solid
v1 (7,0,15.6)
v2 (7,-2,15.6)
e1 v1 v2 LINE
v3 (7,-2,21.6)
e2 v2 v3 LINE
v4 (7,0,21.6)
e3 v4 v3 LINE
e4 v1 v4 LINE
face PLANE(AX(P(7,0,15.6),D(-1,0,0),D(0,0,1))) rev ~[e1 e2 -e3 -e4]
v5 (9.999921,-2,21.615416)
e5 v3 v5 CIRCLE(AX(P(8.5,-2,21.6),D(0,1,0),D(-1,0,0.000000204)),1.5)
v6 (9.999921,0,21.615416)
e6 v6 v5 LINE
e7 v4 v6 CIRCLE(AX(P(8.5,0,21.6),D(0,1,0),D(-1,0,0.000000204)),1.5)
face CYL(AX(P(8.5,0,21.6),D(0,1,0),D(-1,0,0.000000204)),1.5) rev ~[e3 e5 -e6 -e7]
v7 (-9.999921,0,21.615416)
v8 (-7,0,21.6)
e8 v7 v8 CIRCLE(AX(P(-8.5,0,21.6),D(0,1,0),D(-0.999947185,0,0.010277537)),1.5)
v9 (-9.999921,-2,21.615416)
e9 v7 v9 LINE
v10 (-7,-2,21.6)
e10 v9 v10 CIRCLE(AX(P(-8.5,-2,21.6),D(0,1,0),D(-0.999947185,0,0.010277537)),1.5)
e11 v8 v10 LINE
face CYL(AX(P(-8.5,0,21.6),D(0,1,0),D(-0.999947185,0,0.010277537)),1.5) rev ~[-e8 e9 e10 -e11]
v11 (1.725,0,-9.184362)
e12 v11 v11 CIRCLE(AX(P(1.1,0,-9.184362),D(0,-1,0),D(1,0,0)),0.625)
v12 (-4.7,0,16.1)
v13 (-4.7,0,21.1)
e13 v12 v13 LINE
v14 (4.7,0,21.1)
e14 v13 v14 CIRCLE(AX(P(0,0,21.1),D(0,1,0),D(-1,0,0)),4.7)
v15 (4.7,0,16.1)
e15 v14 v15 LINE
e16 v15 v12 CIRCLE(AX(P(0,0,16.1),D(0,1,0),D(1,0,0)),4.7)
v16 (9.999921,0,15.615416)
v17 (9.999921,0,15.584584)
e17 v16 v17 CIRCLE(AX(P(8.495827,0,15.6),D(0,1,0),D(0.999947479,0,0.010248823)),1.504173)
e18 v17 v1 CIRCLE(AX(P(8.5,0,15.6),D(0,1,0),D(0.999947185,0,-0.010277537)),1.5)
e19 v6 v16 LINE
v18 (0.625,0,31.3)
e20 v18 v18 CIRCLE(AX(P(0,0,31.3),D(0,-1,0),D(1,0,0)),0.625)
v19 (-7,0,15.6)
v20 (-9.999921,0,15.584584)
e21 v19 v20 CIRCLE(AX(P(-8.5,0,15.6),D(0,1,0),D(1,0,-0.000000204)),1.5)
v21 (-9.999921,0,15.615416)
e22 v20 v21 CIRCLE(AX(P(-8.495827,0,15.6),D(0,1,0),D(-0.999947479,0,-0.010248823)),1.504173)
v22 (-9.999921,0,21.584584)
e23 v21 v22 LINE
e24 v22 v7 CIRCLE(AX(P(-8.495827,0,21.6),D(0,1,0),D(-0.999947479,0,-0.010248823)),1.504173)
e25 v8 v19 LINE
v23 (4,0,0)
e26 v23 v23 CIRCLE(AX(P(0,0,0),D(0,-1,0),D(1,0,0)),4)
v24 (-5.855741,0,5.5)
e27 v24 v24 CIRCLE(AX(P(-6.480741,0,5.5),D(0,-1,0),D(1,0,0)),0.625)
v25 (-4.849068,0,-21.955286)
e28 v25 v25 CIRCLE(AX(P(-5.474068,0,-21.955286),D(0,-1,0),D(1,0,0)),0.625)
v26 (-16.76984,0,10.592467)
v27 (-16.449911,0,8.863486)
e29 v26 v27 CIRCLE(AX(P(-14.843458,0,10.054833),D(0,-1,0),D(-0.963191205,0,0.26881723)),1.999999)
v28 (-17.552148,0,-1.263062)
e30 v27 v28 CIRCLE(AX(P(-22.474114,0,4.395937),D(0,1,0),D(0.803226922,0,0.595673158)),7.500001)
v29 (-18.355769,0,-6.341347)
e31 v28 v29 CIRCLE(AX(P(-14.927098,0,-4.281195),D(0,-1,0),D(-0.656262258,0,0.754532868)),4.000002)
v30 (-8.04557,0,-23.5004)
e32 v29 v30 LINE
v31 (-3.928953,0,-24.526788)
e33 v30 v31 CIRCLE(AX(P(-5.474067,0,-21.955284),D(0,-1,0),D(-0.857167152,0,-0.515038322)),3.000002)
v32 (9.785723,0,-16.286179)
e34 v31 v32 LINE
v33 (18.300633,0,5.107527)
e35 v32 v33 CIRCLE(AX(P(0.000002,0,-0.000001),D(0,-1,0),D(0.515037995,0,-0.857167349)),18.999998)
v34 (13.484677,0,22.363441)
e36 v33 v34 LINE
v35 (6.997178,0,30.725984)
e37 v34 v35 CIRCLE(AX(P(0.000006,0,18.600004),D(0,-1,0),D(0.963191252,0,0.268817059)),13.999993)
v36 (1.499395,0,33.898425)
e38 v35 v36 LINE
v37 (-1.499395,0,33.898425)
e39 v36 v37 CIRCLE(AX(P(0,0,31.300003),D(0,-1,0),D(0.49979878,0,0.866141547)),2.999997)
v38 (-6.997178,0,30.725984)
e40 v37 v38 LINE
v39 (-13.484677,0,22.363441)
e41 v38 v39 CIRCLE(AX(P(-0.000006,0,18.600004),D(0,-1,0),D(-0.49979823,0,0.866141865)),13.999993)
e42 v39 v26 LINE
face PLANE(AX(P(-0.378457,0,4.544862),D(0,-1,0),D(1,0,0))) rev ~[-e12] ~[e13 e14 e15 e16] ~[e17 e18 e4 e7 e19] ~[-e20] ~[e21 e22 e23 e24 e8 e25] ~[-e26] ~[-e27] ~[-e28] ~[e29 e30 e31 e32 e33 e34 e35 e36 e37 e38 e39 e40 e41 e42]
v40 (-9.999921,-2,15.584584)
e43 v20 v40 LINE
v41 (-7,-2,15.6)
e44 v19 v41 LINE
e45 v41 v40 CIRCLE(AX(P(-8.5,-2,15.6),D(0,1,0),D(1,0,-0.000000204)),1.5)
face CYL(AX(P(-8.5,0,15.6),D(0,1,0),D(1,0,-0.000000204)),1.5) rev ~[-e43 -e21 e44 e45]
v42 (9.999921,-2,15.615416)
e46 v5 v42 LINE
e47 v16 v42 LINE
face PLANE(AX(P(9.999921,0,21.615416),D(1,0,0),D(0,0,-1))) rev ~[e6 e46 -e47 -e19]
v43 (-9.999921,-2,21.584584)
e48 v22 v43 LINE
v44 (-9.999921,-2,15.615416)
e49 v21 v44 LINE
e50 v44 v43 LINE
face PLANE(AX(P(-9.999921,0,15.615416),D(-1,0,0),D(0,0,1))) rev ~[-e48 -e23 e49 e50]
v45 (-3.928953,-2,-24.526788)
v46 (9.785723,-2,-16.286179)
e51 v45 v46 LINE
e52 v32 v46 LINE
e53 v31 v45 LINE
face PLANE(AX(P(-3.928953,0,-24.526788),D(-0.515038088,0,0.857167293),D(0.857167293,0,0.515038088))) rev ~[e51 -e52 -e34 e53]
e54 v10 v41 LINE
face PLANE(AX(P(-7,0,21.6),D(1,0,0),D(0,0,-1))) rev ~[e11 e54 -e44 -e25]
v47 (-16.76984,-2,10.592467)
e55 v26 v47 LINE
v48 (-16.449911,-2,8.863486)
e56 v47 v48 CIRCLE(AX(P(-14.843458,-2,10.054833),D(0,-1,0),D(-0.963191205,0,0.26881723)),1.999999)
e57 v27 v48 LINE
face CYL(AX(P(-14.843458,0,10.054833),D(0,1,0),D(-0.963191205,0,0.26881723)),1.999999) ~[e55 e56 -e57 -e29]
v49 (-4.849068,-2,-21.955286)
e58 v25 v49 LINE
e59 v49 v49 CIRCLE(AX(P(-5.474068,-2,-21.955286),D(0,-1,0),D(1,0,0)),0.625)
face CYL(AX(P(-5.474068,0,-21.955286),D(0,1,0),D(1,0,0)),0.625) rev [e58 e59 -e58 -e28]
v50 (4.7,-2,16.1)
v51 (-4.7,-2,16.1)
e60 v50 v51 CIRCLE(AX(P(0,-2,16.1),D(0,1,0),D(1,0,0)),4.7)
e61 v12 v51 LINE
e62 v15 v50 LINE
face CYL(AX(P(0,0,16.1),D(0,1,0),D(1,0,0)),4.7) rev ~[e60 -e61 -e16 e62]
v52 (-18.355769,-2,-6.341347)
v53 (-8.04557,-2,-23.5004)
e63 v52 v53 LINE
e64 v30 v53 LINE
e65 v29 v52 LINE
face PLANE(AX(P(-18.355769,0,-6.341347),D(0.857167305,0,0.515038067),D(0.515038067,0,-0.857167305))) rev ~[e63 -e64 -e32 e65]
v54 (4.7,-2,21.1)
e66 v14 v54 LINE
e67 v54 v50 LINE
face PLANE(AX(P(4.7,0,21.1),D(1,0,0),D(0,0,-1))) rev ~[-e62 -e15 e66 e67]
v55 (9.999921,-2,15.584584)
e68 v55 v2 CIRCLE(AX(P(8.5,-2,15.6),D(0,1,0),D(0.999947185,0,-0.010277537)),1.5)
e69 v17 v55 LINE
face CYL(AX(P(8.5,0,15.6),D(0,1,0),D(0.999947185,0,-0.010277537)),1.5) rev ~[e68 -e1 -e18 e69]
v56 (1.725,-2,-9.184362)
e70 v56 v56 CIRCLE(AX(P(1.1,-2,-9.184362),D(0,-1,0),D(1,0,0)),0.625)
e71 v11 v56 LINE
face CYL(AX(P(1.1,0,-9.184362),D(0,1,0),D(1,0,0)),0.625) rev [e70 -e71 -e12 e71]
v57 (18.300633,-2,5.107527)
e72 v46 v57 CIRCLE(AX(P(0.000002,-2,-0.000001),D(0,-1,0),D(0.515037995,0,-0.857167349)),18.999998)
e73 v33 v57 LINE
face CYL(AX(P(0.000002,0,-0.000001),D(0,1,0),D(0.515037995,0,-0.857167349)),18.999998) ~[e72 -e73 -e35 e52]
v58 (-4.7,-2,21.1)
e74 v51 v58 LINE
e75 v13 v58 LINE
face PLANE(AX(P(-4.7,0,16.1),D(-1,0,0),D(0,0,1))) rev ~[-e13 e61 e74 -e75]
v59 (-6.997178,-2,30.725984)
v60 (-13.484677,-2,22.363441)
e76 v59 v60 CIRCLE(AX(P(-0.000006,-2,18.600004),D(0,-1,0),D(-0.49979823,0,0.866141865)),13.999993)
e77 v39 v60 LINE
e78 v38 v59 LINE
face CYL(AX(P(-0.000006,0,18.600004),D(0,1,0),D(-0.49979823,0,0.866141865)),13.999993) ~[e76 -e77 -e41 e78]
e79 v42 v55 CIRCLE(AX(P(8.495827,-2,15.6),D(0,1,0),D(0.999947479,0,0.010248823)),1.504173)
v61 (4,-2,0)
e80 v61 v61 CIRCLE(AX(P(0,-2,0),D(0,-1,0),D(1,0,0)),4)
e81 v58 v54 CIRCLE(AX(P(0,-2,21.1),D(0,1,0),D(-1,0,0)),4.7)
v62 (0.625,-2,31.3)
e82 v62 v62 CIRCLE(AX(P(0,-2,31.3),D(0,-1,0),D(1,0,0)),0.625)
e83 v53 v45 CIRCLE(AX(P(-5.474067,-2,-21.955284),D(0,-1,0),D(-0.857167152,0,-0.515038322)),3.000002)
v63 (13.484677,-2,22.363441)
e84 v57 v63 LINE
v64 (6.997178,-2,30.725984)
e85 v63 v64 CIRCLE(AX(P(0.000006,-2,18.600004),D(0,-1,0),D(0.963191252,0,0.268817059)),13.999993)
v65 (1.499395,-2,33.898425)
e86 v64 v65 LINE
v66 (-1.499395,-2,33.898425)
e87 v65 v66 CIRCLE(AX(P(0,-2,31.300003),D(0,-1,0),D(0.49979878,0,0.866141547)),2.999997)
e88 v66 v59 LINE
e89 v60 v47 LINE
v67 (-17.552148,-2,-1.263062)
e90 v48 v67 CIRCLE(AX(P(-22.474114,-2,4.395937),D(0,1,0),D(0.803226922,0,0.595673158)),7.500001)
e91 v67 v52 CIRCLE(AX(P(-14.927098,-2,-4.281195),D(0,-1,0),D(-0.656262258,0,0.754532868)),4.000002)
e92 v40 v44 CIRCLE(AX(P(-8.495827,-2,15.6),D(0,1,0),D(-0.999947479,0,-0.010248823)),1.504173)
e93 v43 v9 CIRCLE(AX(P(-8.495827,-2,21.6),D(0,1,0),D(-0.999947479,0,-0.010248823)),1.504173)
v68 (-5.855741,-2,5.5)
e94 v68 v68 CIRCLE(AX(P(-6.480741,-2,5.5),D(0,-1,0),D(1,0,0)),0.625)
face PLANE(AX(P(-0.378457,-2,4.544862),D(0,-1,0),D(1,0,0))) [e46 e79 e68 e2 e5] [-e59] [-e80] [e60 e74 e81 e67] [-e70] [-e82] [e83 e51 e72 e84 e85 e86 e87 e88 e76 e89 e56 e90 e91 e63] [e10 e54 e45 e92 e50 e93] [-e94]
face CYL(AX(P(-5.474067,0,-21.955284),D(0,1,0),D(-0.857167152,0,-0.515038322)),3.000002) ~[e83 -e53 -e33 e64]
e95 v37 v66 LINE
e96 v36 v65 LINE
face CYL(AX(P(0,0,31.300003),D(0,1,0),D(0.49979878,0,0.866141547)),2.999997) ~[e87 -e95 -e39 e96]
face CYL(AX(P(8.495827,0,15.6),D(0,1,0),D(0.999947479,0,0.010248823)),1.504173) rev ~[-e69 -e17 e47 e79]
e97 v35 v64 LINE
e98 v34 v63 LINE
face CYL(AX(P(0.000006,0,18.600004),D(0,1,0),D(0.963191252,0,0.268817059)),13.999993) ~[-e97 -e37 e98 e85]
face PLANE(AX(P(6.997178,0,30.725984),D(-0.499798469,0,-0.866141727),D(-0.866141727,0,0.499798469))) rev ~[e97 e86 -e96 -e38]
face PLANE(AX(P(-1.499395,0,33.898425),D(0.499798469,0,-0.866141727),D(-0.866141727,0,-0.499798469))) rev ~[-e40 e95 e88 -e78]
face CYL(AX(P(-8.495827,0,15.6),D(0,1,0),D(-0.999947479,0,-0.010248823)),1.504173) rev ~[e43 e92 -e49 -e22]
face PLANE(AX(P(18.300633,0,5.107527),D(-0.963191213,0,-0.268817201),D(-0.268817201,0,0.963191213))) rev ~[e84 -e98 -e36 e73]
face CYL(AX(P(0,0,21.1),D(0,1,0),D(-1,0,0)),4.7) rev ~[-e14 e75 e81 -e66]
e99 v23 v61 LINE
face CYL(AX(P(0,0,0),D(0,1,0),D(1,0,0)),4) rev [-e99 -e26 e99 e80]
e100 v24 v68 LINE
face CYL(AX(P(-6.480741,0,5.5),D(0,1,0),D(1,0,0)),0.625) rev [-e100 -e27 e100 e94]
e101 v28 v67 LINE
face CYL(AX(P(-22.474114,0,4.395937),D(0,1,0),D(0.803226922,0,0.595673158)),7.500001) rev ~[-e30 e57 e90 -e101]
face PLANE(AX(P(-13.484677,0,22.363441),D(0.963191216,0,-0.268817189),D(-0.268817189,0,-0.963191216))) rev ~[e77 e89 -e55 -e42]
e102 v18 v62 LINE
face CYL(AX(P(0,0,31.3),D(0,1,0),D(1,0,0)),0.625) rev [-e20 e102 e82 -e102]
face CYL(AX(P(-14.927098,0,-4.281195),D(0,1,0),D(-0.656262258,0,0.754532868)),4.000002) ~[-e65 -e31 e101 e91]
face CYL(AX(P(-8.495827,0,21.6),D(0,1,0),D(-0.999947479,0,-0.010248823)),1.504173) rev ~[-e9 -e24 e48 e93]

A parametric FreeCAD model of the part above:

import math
import FreeCAD as App
import Part
import Sketcher
Q = App.Units.Quantity

doc = App.newDocument("Part")
params = doc.addObject("Spreadsheet::Sheet", "Params")
for row, (alias, value) in enumerate([
    ("sketch1_diameter", "8 mm"),
    ("sketch1_radius", "18.999998 mm"),
    ("sketch1_radius2", "1.999999 mm"),
    ("sketch1_radius3", "3.000002 mm"),
    ("sketch1_radius4", "7.500001 mm"),
    ("pad1_length", "2 mm"),
], start=1):
    params.set(f"A{row}", alias)
    params.set(f"B{row}", "=" + value)
    params.setAlias(f"B{row}", alias)

body = doc.addObject("PartDesign::Body", "Body")

# Sketch on XZ plane
sketch1 = body.newObject("Sketcher::SketchObject", "Sketch")
sketch1.AttachmentSupport = (doc.getObject("XZ_Plane"), [""])
sketch1.MapMode = "FlatFace"
sketch1.addGeometry(Part.LineSegment(App.Vector(-3.928953, -24.526788, 0), App.Vector(9.785723, -16.286179, 0)), False)
sketch1.addGeometry(Part.ArcOfCircle(Part.Circle(App.Vector(0.000002, -0.000001, 0), App.Vector(0, 0, 1), 18.999998), math.radians(-59.000005), math.radians(15.5939)), False)
sketch1.addGeometry(Part.LineSegment(App.Vector(18.300633, 5.107527, 0), App.Vector(13.484677, 22.363441, 0)), False)
sketch1.addGeometry(Part.ArcOfCircle(Part.Circle(App.Vector(0.000006, 18.600004, 0), App.Vector(0, 0, 1), 13.999993), math.radians(15.593887), math.radians(60.013348)), False)
sketch1.addGeometry(Part.LineSegment(App.Vector(6.997178, 30.725984, 0), App.Vector(1.499395, 33.898425, 0)), False)
sketch1.addGeometry(Part.ArcOfCircle(Part.Circle(App.Vector(0, 31.300003, 0), App.Vector(0, 0, 1), 2.999997), math.radians(60.013312), math.radians(119.986688)), False)
sketch1.addGeometry(Part.LineSegment(App.Vector(-1.499395, 33.898425, 0), App.Vector(-6.997178, 30.725984, 0)), False)
sketch1.addGeometry(Part.ArcOfCircle(Part.Circle(App.Vector(-0.000006, 18.600004, 0), App.Vector(0, 0, 1), 13.999993), math.radians(119.986652), math.radians(164.406113)), False)
sketch1.addGeometry(Part.LineSegment(App.Vector(-13.484677, 22.363441, 0), App.Vector(-16.76984, 10.592467, 0)), False)
sketch1.addGeometry(Part.ArcOfCircle(Part.Circle(App.Vector(-14.843458, 10.054833, 0), App.Vector(0, 0, 1), 1.999999), math.radians(164.406103), math.radians(216.56066)), False)
sketch1.addGeometry(Part.ArcOfCircle(Part.Circle(App.Vector(-22.474114, 4.395937, 0), App.Vector(0, 0, 1), 7.500001), math.radians(-48.984589), math.radians(36.560635)), False)
sketch1.addGeometry(Part.ArcOfCircle(Part.Circle(App.Vector(-14.927098, -4.281195, 0), App.Vector(0, 0, 1), 4.000002), math.radians(131.015431), math.radians(210.999986)), False)
sketch1.addGeometry(Part.LineSegment(App.Vector(-18.355769, -6.341347, 0), App.Vector(-8.04557, -23.5004, 0)), False)
sketch1.addGeometry(Part.ArcOfCircle(Part.Circle(App.Vector(-5.474067, -21.955284, 0), App.Vector(0, 0, 1), 3.000002), math.radians(-148.999983), math.radians(-59.000019)), False)
sketch1.addGeometry(Part.Circle(App.Vector(-5.474068, -21.955286, 0), App.Vector(0, 0, 1), 0.625), False)
sketch1.addGeometry(Part.Circle(App.Vector(1.1, -9.184362, 0), App.Vector(0, 0, 1), 0.625), False)
sketch1.addGeometry(Part.Circle(App.Vector(0, 0, 0), App.Vector(0, 0, 1), 4), False)
sketch1.addGeometry(Part.Circle(App.Vector(-6.480741, 5.5, 0), App.Vector(0, 0, 1), 0.625), False)
sketch1.addGeometry(Part.ArcOfCircle(Part.Circle(App.Vector(-8.495827, 21.6, 0), App.Vector(0, 0, 1), 1.504173), math.radians(179.412775), math.radians(180.587225)), False)
sketch1.addGeometry(Part.ArcOfCircle(Part.Circle(App.Vector(-8.5, 21.6, 0), App.Vector(0, 0, 1), 1.5), math.radians(0.000012), math.radians(179.41113)), False)
sketch1.addGeometry(Part.LineSegment(App.Vector(-7, 21.6, 0), App.Vector(-7, 15.6, 0)), False)
sketch1.addGeometry(Part.ArcOfCircle(Part.Circle(App.Vector(-8.5, 15.6, 0), App.Vector(0, 0, 1), 1.5), math.radians(-179.41113), math.radians(-0.000012)), False)
sketch1.addGeometry(Part.ArcOfCircle(Part.Circle(App.Vector(-8.495827, 15.6, 0), App.Vector(0, 0, 1), 1.504173), math.radians(179.412775), math.radians(180.587225)), False)
sketch1.addGeometry(Part.LineSegment(App.Vector(-9.999921, 15.615416, 0), App.Vector(-9.999921, 21.584584, 0)), False)
sketch1.addGeometry(Part.LineSegment(App.Vector(4.7, 21.1, 0), App.Vector(4.7, 16.1, 0)), False)
sketch1.addGeometry(Part.ArcOfCircle(Part.Circle(App.Vector(0, 16.1, 0), App.Vector(0, 0, 1), 4.7), math.radians(180), math.radians(360)), False)
sketch1.addGeometry(Part.LineSegment(App.Vector(-4.7, 16.1, 0), App.Vector(-4.7, 21.1, 0)), False)
sketch1.addGeometry(Part.ArcOfCircle(Part.Circle(App.Vector(0, 21.1, 0), App.Vector(0, 0, 1), 4.7), math.radians(0), math.radians(180)), False)
sketch1.addGeometry(Part.Circle(App.Vector(0, 31.3, 0), App.Vector(0, 0, 1), 0.625), False)
sketch1.addGeometry(Part.ArcOfCircle(Part.Circle(App.Vector(8.495827, 15.6, 0), App.Vector(0, 0, 1), 1.504173), math.radians(-0.587225), math.radians(0.587225)), False)
sketch1.addGeometry(Part.ArcOfCircle(Part.Circle(App.Vector(8.5, 15.6, 0), App.Vector(0, 0, 1), 1.5), math.radians(-179.999988), math.radians(-0.58887)), False)
sketch1.addGeometry(Part.LineSegment(App.Vector(7, 15.6, 0), App.Vector(7, 21.6, 0)), False)
sketch1.addGeometry(Part.ArcOfCircle(Part.Circle(App.Vector(8.5, 21.6, 0), App.Vector(0, 0, 1), 1.5), math.radians(0.58887), math.radians(179.999988)), False)
sketch1.addGeometry(Part.LineSegment(App.Vector(9.999921, 21.615416, 0), App.Vector(9.999921, 15.615416, 0)), False)
sketch1.addConstraint(Sketcher.Constraint("Tangent", 0, 2, 1, 1))
sketch1.addConstraint(Sketcher.Constraint("Tangent", 1, 2, 2, 1))
sketch1.addConstraint(Sketcher.Constraint("Tangent", 2, 2, 3, 1))
sketch1.addConstraint(Sketcher.Constraint("Tangent", 3, 2, 4, 1))
sketch1.addConstraint(Sketcher.Constraint("Tangent", 4, 2, 5, 1))
sketch1.addConstraint(Sketcher.Constraint("Tangent", 5, 2, 6, 1))
sketch1.addConstraint(Sketcher.Constraint("Tangent", 6, 2, 7, 1))
sketch1.addConstraint(Sketcher.Constraint("Tangent", 7, 2, 8, 1))
sketch1.addConstraint(Sketcher.Constraint("Tangent", 8, 2, 9, 1))
sketch1.addConstraint(Sketcher.Constraint("Tangent", 9, 2, 10, 2))
sketch1.addConstraint(Sketcher.Constraint("Tangent", 10, 1, 11, 1))
sketch1.addConstraint(Sketcher.Constraint("Tangent", 11, 2, 12, 1))
sketch1.addConstraint(Sketcher.Constraint("Tangent", 12, 2, 13, 1))
sketch1.addConstraint(Sketcher.Constraint("Tangent", 13, 2, 0, 1))
sketch1.addConstraint(Sketcher.Constraint("Coincident", 18, 1, 19, 2))
sketch1.addConstraint(Sketcher.Constraint("Tangent", 19, 1, 20, 1))
sketch1.addConstraint(Sketcher.Constraint("Tangent", 20, 2, 21, 2))
sketch1.addConstraint(Sketcher.Constraint("Coincident", 21, 1, 22, 2))
sketch1.addConstraint(Sketcher.Constraint("Coincident", 22, 1, 23, 1))
sketch1.addConstraint(Sketcher.Constraint("Coincident", 23, 2, 18, 2))
sketch1.addConstraint(Sketcher.Constraint("Tangent", 24, 2, 25, 2))
sketch1.addConstraint(Sketcher.Constraint("Tangent", 25, 1, 26, 1))
sketch1.addConstraint(Sketcher.Constraint("Tangent", 26, 2, 27, 2))
sketch1.addConstraint(Sketcher.Constraint("Tangent", 27, 1, 24, 1))
sketch1.addConstraint(Sketcher.Constraint("Coincident", 29, 1, 30, 2))
sketch1.addConstraint(Sketcher.Constraint("Tangent", 30, 1, 31, 1))
sketch1.addConstraint(Sketcher.Constraint("Tangent", 31, 2, 32, 2))
sketch1.addConstraint(Sketcher.Constraint("Coincident", 32, 1, 33, 1))
sketch1.addConstraint(Sketcher.Constraint("Coincident", 33, 2, 29, 2))
sketch1.addConstraint(Sketcher.Constraint("Vertical", 20))
sketch1.addConstraint(Sketcher.Constraint("Vertical", 23))
sketch1.addConstraint(Sketcher.Constraint("Vertical", 24))
sketch1.addConstraint(Sketcher.Constraint("Vertical", 26))
sketch1.addConstraint(Sketcher.Constraint("Vertical", 31))
sketch1.addConstraint(Sketcher.Constraint("Vertical", 33))
sketch1.addConstraint(Sketcher.Constraint("Coincident", 1, 3, -1, 1))
sketch1.addConstraint(Sketcher.Constraint("Coincident", 16, 3, -1, 1))
sketch1.addConstraint(Sketcher.Constraint("Coincident", 14, 3, 13, 3))
sketch1.addConstraint(Sketcher.Constraint("Coincident", 28, 3, 5, 3))
sketch1.addConstraint(Sketcher.Constraint("Equal", 3, 7))
sketch1.addConstraint(Sketcher.Constraint("Equal", 14, 15))
sketch1.addConstraint(Sketcher.Constraint("Equal", 11, 16))
sketch1.addConstraint(Sketcher.Constraint("Equal", 15, 17))
sketch1.addConstraint(Sketcher.Constraint("Equal", 19, 21))
sketch1.addConstraint(Sketcher.Constraint("Equal", 18, 22))
sketch1.addConstraint(Sketcher.Constraint("Equal", 17, 28))
sketch1.addConstraint(Sketcher.Constraint("Equal", 22, 29))
sketch1.addConstraint(Sketcher.Constraint("Equal", 21, 30))
sketch1.addConstraint(Sketcher.Constraint("Equal", 30, 32))
sketch1.addConstraint(Sketcher.Constraint("Symmetric", 3, 3, 7, 3, -2))
sketch1.addConstraint(Sketcher.Constraint("Symmetric", 22, 3, 29, 3, -2))
sketch1.addConstraint(Sketcher.Constraint("Symmetric", 21, 3, 30, 3, -2))
sketch1.addConstraint(Sketcher.Constraint("Symmetric", 18, 1, 32, 1, -2))
sketch1.addConstraint(Sketcher.Constraint("PointOnObject", 5, 3, -2))
sketch1.addConstraint(Sketcher.Constraint("PointOnObject", 25, 3, -2))
sketch1.addConstraint(Sketcher.Constraint("Perpendicular", 0, 12))
sketch1.addConstraint(Sketcher.Constraint("Horizontal", 18, 3, 19, 3))
sketch1.addConstraint(Sketcher.Constraint("Horizontal", 21, 3, 22, 3))
sketch1.addConstraint(Sketcher.Constraint("Horizontal", 2, 2, 7, 2))
sketch1.addConstraint(Sketcher.Constraint("Horizontal", 22, 1, 33, 2))
sketch1.addConstraint(Sketcher.Constraint("Vertical", 18, 1, 21, 1))
sketch1.addConstraint(Sketcher.Constraint("Diameter", 16, 8.0))
sketch1.addConstraint(Sketcher.Constraint("Radius", 1, 18.999998))
sketch1.addConstraint(Sketcher.Constraint("Radius", 9, 1.999999))
sketch1.addConstraint(Sketcher.Constraint("Radius", 13, 3.000002))
sketch1.addConstraint(Sketcher.Constraint("Radius", 10, 7.500001))
sketch1.addConstraint(Sketcher.Constraint("Radius", 19, 1.5))
sketch1.addConstraint(Sketcher.Constraint("Radius", 25, 4.7))
sketch1.addConstraint(Sketcher.Constraint("Diameter", 14, 1.25))
sketch1.addConstraint(Sketcher.Constraint("DistanceY", 20, 2, 20, 1, 6.0))
sketch1.addConstraint(Sketcher.Constraint("DistanceY", 24, 2, 24, 1, 5.0))
sketch1.addConstraint(Sketcher.Constraint("Angle", 0, Q("31.000001 deg")))
sketch1.addConstraint(Sketcher.Constraint("Distance", 0, 15.999999))
sketch1.addConstraint(Sketcher.Constraint("DistanceX", 19, 1, -1, 1, 7.0))
sketch1.addConstraint(Sketcher.Constraint("DistanceX", -1, 1, 15, 3, 1.1))
sketch1.addConstraint(Sketcher.Constraint("DistanceY", -1, 1, 17, 3, 5.5))
sketch1.addConstraint(Sketcher.Constraint("DistanceY", -1, 1, 18, 3, 21.6))
sketch1.addConstraint(Sketcher.Constraint("DistanceY", -1, 1, 25, 3, 16.1))
sketch1.addConstraint(Sketcher.Constraint("DistanceY", -1, 1, 28, 3, 31.3))
sketch1.addConstraint(Sketcher.Constraint("DistanceY", 3, 3, 5, 3, 12.699999))
sketch1.addConstraint(Sketcher.Constraint("Radius", 3, 13.999993))
sketch1.addConstraint(Sketcher.Constraint("Radius", 5, 2.999997))
sketch1.addConstraint(Sketcher.Constraint("Radius", 18, 1.504173))
sketch1.addConstraint(Sketcher.Constraint("DistanceY", 10, 1, 10, 3, 5.658999))
sketch1.addConstraint(Sketcher.Constraint("DistanceX", 11, 3, 1, 3, 14.9271))
sketch1.addConstraint(Sketcher.Constraint("DistanceX", 3, 2, 2, 2, 6.487499))
sketch1.addConstraint(Sketcher.Constraint("DistanceX", 8, 2, 17, 3, 10.289099))
sketch1.addConstraint(Sketcher.Constraint("DistanceY", 23, 1, 23, 2, 5.969168))
sketch1.addConstraint(Sketcher.Constraint("DistanceY", 15, 3, 1, 3, 9.184361))
sketch1.setExpression("Constraints[61]", "Params.sketch1_diameter")
sketch1.setExpression("Constraints[62]", "Params.sketch1_radius")
sketch1.setExpression("Constraints[63]", "Params.sketch1_radius2")
sketch1.setExpression("Constraints[64]", "Params.sketch1_radius3")
sketch1.setExpression("Constraints[65]", "Params.sketch1_radius4")
pad1 = body.newObject("PartDesign::Pad", "Pad")
pad1.Profile = sketch1
pad1.setExpression("Length", "Params.pad1_length")

doc.recompute()
